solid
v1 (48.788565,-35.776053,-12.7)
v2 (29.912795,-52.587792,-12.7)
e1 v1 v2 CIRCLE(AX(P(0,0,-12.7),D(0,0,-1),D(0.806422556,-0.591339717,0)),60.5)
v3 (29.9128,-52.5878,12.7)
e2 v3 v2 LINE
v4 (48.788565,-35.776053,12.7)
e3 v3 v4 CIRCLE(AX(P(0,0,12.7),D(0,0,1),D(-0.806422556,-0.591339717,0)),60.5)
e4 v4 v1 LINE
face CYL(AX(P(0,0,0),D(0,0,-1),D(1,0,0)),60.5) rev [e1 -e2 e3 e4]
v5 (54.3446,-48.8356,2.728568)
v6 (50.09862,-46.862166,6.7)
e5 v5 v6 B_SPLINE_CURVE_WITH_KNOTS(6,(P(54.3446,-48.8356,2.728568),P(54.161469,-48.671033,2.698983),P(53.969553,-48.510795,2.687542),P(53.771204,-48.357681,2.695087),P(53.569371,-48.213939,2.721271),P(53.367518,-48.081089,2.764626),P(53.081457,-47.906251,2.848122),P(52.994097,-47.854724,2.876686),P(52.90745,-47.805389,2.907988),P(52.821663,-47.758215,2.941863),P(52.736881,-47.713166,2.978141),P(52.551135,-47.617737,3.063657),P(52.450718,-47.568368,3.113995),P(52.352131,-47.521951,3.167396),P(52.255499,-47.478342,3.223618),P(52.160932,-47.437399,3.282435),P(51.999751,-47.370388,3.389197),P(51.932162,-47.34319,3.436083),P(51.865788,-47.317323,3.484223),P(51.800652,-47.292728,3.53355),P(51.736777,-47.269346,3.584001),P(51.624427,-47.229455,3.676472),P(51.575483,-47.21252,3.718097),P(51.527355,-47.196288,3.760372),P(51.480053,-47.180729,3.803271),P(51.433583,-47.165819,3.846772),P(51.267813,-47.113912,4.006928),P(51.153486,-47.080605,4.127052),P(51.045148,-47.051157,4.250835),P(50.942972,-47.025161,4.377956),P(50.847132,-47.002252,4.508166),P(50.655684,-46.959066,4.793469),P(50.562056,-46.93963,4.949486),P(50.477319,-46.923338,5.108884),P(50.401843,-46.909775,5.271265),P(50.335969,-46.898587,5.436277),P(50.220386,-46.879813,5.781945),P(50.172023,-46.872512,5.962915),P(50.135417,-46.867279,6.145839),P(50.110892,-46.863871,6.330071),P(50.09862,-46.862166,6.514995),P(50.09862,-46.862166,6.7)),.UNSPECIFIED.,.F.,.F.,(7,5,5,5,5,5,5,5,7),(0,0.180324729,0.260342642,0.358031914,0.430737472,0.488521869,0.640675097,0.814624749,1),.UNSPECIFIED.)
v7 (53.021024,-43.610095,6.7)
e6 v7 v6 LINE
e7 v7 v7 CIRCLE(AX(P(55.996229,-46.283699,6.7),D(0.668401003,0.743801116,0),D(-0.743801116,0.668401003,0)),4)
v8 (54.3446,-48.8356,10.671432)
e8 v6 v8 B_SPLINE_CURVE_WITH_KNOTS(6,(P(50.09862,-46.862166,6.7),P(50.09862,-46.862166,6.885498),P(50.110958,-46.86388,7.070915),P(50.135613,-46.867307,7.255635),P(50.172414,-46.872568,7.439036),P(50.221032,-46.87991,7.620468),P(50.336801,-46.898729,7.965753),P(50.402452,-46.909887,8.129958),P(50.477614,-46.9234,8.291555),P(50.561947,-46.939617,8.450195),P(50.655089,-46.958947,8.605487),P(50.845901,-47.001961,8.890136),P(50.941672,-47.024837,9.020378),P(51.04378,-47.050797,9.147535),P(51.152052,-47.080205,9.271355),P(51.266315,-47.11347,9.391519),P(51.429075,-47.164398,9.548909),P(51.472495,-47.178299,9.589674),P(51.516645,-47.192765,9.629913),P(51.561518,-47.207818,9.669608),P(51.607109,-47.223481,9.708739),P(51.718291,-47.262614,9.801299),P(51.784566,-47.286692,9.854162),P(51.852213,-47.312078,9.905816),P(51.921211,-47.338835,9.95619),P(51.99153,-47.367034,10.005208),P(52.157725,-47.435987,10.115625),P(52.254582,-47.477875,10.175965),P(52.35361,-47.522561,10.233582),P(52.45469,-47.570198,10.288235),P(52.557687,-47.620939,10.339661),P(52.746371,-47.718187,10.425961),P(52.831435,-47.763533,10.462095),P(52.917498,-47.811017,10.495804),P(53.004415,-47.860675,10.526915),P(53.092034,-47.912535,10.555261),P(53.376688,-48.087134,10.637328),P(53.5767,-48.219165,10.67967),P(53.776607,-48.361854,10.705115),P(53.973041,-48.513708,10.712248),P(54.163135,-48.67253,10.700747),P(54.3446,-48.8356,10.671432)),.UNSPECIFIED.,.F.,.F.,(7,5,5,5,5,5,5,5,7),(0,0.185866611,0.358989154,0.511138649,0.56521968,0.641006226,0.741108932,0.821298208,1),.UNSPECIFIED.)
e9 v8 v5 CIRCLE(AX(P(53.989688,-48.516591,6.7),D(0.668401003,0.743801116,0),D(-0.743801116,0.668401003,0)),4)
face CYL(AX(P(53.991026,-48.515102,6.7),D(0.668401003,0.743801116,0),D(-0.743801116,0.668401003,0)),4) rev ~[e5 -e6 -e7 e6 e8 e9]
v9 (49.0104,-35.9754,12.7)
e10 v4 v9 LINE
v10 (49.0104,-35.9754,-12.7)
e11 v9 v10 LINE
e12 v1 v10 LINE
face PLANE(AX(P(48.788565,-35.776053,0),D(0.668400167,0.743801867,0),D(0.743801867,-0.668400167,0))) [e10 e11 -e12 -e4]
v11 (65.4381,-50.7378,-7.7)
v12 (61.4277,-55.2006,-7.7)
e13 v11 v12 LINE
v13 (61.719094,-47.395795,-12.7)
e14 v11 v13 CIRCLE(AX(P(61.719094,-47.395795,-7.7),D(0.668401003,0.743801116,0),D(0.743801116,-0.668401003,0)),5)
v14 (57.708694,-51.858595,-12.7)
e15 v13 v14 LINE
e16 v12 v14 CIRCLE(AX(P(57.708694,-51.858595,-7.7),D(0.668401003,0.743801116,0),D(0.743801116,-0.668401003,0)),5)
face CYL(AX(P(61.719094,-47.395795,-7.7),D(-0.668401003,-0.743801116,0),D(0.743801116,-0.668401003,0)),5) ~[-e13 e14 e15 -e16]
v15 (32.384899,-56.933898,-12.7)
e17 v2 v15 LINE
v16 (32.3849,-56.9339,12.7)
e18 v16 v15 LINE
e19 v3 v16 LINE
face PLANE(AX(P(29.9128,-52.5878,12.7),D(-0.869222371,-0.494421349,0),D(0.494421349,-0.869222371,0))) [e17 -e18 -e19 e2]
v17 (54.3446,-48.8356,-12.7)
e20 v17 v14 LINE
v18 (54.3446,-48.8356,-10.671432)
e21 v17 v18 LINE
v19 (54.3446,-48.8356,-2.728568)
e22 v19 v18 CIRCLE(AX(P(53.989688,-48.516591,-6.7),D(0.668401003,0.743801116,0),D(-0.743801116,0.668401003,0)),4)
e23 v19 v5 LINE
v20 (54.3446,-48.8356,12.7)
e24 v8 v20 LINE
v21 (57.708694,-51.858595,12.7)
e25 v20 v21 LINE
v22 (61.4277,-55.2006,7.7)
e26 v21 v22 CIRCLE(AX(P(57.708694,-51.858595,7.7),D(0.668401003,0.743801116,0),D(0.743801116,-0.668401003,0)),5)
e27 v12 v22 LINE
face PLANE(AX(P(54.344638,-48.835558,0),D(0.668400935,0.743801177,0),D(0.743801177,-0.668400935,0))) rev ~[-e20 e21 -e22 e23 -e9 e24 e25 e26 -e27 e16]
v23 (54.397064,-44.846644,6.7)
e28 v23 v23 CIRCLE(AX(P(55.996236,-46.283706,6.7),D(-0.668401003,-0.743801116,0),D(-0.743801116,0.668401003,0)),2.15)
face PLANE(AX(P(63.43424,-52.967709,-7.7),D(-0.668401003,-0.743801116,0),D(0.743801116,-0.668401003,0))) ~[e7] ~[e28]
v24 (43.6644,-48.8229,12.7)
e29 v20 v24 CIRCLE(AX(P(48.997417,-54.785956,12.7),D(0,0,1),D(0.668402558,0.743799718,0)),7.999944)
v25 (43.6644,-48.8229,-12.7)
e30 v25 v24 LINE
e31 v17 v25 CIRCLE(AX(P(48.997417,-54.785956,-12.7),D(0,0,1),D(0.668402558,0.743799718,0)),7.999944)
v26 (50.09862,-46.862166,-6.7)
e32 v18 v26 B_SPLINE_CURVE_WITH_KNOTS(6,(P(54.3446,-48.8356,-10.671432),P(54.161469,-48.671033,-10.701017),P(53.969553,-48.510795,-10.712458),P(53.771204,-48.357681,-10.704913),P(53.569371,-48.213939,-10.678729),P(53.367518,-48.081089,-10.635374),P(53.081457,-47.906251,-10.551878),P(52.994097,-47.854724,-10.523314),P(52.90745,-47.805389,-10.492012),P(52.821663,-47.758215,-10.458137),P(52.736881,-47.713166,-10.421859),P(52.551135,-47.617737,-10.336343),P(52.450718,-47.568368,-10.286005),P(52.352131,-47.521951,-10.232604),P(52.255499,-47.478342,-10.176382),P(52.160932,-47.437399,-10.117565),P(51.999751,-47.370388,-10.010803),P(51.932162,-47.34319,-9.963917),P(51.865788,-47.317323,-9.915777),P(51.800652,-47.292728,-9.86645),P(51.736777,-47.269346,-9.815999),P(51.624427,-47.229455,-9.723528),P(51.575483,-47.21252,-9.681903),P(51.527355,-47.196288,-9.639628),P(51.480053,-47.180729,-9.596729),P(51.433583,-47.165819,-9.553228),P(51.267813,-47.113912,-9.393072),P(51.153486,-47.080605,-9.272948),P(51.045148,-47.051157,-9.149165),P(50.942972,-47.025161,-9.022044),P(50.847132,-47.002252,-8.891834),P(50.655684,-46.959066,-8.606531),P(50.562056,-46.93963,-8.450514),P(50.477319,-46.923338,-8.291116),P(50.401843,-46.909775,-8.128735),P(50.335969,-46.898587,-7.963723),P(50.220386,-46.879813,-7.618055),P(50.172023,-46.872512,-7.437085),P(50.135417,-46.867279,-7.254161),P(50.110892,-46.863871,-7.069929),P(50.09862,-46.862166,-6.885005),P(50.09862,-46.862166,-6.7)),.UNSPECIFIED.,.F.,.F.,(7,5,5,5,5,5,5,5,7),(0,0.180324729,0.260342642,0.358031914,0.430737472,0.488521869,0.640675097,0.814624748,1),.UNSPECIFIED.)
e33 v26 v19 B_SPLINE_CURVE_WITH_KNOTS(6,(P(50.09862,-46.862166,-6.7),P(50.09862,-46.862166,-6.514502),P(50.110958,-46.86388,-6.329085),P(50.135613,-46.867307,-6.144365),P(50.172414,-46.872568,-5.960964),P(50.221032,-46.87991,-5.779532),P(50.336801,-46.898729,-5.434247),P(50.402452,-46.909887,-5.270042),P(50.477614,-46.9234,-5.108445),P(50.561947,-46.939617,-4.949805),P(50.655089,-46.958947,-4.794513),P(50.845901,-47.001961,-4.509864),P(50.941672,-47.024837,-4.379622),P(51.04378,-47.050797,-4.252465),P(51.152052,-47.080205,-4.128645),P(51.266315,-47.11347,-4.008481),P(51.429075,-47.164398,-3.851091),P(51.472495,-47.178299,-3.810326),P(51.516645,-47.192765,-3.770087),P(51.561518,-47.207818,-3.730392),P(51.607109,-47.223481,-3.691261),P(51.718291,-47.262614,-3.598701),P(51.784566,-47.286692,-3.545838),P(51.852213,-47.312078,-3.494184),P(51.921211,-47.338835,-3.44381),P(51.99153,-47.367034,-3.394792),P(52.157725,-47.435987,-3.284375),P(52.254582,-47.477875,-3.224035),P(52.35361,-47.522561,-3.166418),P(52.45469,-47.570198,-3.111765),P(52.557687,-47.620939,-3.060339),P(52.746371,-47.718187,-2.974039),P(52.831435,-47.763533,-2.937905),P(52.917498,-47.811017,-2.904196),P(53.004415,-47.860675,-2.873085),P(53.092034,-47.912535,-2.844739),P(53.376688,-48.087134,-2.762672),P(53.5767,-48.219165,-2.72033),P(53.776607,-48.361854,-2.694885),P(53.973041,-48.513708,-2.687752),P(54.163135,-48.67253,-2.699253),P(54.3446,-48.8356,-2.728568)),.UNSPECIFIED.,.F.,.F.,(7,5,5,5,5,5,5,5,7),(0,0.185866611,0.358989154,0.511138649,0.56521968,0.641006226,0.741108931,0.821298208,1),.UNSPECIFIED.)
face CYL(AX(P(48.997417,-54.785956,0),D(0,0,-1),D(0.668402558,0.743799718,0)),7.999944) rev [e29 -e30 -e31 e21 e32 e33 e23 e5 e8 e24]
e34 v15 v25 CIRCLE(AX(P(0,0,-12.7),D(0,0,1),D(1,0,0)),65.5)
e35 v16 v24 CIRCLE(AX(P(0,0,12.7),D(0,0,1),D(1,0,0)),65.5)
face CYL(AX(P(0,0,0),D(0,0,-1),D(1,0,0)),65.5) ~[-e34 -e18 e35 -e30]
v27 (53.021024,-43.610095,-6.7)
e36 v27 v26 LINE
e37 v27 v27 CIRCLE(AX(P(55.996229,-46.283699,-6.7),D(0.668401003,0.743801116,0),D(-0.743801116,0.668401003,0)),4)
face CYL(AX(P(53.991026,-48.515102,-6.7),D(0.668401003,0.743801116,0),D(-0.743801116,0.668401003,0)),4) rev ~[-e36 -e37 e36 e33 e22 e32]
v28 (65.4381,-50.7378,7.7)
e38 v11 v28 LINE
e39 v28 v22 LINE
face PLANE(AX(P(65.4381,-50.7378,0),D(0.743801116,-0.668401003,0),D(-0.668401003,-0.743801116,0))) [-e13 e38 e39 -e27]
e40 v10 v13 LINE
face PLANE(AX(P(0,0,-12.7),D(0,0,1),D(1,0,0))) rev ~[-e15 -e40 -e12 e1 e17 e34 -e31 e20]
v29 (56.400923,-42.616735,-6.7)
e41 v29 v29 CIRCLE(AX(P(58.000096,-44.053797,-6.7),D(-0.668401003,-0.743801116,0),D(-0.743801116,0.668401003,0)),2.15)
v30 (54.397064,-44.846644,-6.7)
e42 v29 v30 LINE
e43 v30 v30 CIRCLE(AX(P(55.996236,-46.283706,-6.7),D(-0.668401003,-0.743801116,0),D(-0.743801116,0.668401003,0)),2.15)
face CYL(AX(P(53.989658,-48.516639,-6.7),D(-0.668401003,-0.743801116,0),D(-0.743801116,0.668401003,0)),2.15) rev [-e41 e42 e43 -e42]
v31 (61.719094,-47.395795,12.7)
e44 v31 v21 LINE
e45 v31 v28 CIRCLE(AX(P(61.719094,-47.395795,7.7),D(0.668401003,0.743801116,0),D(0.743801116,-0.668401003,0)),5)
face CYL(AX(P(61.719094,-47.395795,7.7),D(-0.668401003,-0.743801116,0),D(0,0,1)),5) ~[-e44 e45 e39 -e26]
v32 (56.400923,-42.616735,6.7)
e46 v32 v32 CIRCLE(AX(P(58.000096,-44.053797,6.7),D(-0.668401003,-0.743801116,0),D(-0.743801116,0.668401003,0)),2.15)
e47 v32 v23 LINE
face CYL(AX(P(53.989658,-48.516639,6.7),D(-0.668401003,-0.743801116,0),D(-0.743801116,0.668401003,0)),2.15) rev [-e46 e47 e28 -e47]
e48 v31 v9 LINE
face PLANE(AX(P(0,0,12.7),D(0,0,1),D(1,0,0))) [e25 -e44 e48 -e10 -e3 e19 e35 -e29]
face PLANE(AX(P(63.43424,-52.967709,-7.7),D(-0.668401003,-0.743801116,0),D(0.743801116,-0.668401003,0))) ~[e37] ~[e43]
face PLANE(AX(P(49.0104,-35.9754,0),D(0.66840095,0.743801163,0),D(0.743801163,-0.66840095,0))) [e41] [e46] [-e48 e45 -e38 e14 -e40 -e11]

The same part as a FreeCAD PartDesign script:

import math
import FreeCAD as App
import Part
import Sketcher

V = App.Vector
Q = App.Units.Quantity


def edges_at(feature, points):
    """Names of the edges that pass closest to the given points."""
    edges = feature.Shape.Edges
    near = lambda p: min(range(len(edges)), key=lambda i: edges[i].distToShape(Part.Vertex(*p))[0])
    return sorted({f"Edge{near(p) + 1}" for p in points})

doc = App.newDocument("Part")
body = doc.addObject("PartDesign::Body", "Body")

sketch1 = body.newObject("Sketcher::SketchObject", "Sketch")
sketch1.AttachmentSupport = (doc.getObject("XY_Plane"), [""])
sketch1.MapMode = "FlatFace"
sketch1.addGeometry([
    Part.LineSegment(V(-48.79, -35.78, 0), V(-49.01, -35.98, 0)),
    Part.LineSegment(V(-49.01, -35.98, 0), V(-65.44, -50.74, 0)),
    Part.LineSegment(V(-65.44, -50.74, 0), V(-61.43, -55.2, 0)),
    Part.LineSegment(V(-61.43, -55.2, 0), V(-54.34, -48.84, 0)),
    Part.ArcOfCircle(Part.Circle(V(-49, -54.79, 0), V(0, 0, 1), 8), math.radians(48), math.radians(132)),
    Part.ArcOfCircle(Part.Circle(V(0, 0, 0), V(0, 0, 1), 65.5), math.radians(-132), math.radians(-48)),
    Part.ArcOfCircle(Part.Circle(V(49, -54.79, 0), V(0, 0, 1), 8), math.radians(48), math.radians(132)),
    Part.LineSegment(V(54.34, -48.84, 0), V(61.43, -55.2, 0)),
    Part.LineSegment(V(61.43, -55.2, 0), V(65.44, -50.74, 0)),
    Part.LineSegment(V(65.44, -50.74, 0), V(49.01, -35.98, 0)),
    Part.LineSegment(V(49.01, -35.98, 0), V(48.79, -35.78, 0)),
    Part.ArcOfCircle(Part.Circle(V(0, 0, 0), V(0, 0, 1), 60.5), math.radians(-144), math.radians(-36)),
], False)
sketch1.addConstraint([
    Sketcher.Constraint("Coincident", 0, 2, 1, 1),
    Sketcher.Constraint("Coincident", 1, 2, 2, 1),
    Sketcher.Constraint("Coincident", 2, 2, 3, 1),
    Sketcher.Constraint("Tangent", 3, 2, 4, 2),
    Sketcher.Constraint("Tangent", 4, 1, 5, 1),
    Sketcher.Constraint("Tangent", 5, 2, 6, 2),
    Sketcher.Constraint("Tangent", 6, 1, 7, 1),
    Sketcher.Constraint("Coincident", 7, 2, 8, 1),
    Sketcher.Constraint("Coincident", 8, 2, 9, 1),
    Sketcher.Constraint("Coincident", 9, 2, 10, 1),
    Sketcher.Constraint("Coincident", 10, 2, 11, 2),
    Sketcher.Constraint("Coincident", 11, 1, 0, 1),
    Sketcher.Constraint("Coincident", 5, 3, -1, 1),
    Sketcher.Constraint("Coincident", 11, 3, -1, 1),
    Sketcher.Constraint("Equal", 4, 6),
    Sketcher.Constraint("Symmetric", 3, 2, 6, 1, -2),
    Sketcher.Constraint("Symmetric", 1, 2, 8, 2, -2),
    Sketcher.Constraint("Symmetric", 0, 2, 9, 2, -2),
    Sketcher.Constraint("Parallel", 0, 1),
    Sketcher.Constraint("Perpendicular", 1, 2),
    Sketcher.Constraint("Perpendicular", 2, 3),
    Sketcher.Constraint("Perpendicular", 7, 8),
    Sketcher.Constraint("Parallel", 9, 10),
    Sketcher.Constraint("Radius", 4, Q("8 mm")),
    Sketcher.Constraint("Distance", 2, Q("6 mm")),
    Sketcher.Constraint("Radius", 5, Q("65.5 mm")),
    Sketcher.Constraint("Radius", 11, Q("60.5 mm")),
    Sketcher.Constraint("DistanceY", 6, 3, 10, 2, Q("19.01 mm")),
    Sketcher.Constraint("DistanceY", 4, 3, -1, 1, Q("54.786 mm")),
    Sketcher.Constraint("DistanceX", 1, 2, -1, 1, Q("65.438 mm")),
    Sketcher.Constraint("DistanceX", 0, 2, 4, 3, Q("0.013 mm")),
])
pad1 = body.newObject("PartDesign::Pad", "Pad")
pad1.Profile = sketch1
pad1.Length = 25.4
pad1.Midplane = True
doc.recompute()

fillet = body.newObject("PartDesign::Fillet", "Fillet")
fillet.Base = (pad1, edges_at(pad1, [
    (-63.433, -52.969, 12.7),
    (-63.433, -52.969, -12.7),
    (63.433, -52.969, 12.7),
    (63.433, -52.969, -12.7),
]))
fillet.Radius = 5

sketch2 = body.newObject("Sketcher::SketchObject", "Sketch001")
sketch2.Placement = App.Placement(V(-54.3446, -48.8356, -12.7), App.Rotation(V(0.743801116, 0.668401003, 0), V(0, 0, 1.000000001), V(0.668401003, -0.743801116, 0), "ZXY"))
sketch2.addGeometry([
    Part.Circle(V(0.5, 6, 0), V(0, 0, 1), 2.1),
    Part.Circle(V(0.5, 19.4, 0), V(0, 0, 1), 2.1),
], False)
sketch2.addConstraint([
    Sketcher.Constraint("Equal", 0, 1),
    Sketcher.Constraint("Vertical", 0, 3, 1, 3),
    Sketcher.Constraint("Diameter", 0, Q("4.3 mm")),
    Sketcher.Constraint("DistanceY", -1, 1, 0, 3, Q("6 mm")),
    Sketcher.Constraint("DistanceY", -1, 1, 1, 3, Q("19.4 mm")),
    Sketcher.Constraint("DistanceX", -1, 1, 0, 3, Q("0.4772 mm")),
])
pocket1 = body.newObject("PartDesign::Pocket", "Pocket")
pocket1.Profile = sketch2
pocket1.Type = "ThroughAll"
pocket1.Midplane = True

sketch3 = body.newObject("Sketcher::SketchObject", "Sketch002")
sketch3.Placement = App.Placement(V(-61.4277, -55.2006, -7.7), App.Rotation(V(0.743801116, 0.668401003, 0), V(0, 0, 1.000000001), V(0.668401003, -0.743801116, 0), "ZXY"))
sketch3.addGeometry([
    Part.Circle(V(10, 14.4, 0), V(0, 0, 1), 4),
    Part.Circle(V(10, 1, 0), V(0, 0, 1), 4),
], False)
sketch3.addConstraint([
    Sketcher.Constraint("Equal", 0, 1),
    Sketcher.Constraint("Vertical", 0, 3, 1, 3),
    Sketcher.Constraint("Diameter", 0, Q("8 mm")),
    Sketcher.Constraint("DistanceX", -1, 1, 0, 3, Q("10 mm")),
    Sketcher.Constraint("DistanceY", -1, 1, 1, 3, Q("1 mm")),
    Sketcher.Constraint("DistanceY", -1, 1, 0, 3, Q("14.4 mm")),
])
pocket2 = body.newObject("PartDesign::Pocket", "Pocket001")
pocket2.Profile = sketch3
pocket2.Length = 6
pocket2.Midplane = True
doc.recompute()

mirrored = body.newObject("PartDesign::Mirrored", "Mirrored")
mirrored.Originals = [pocket2, pocket1]
mirrored.MirrorPlane = (doc.getObject("YZ_Plane"), [""])
body.Tip = mirrored

sketch4 = body.newObject("Sketcher::SketchObject", "Sketch003")
sketch4.AttachmentSupport = (doc.getObject("XY_Plane"), [""])
sketch4.MapMode = "FlatFace"
sketch4.AttachmentOffset = App.Placement(V(0, 0, 12.7), App.Rotation())
sketch4.addGeometry([
    Part.LineSegment(V(32.4, -56.9, 0), V(29.9, -52.6, 0)),
    Part.ArcOfCircle(Part.Circle(V(0, 0, 0), V(0, 0, 1), 60.5), math.radians(-144), math.radians(-60)),
    Part.LineSegment(V(-48.8, -35.8, 0), V(-61.7, -47.4, 0)),
    Part.LineSegment(V(-61.7, -47.4, 0), V(-65.4, -50.7, 0)),
    Part.LineSegment(V(-65.4, -50.7, 0), V(-61.4, -55.2, 0)),
    Part.LineSegment(V(-61.4, -55.2, 0), V(-57.7, -51.9, 0)),
    Part.LineSegment(V(-57.7, -51.9, 0), V(-54.3, -48.8, 0)),
    Part.ArcOfCircle(Part.Circle(V(-49, -54.8, 0), V(0, 0, 1), 8), math.radians(48), math.radians(132)),
    Part.ArcOfCircle(Part.Circle(V(0, 0, 0), V(0, 0, 1), 65.5), math.radians(-132), math.radians(-60)),
], False)
sketch4.addConstraint([
    Sketcher.Constraint("Coincident", 0, 2, 1, 2),
    Sketcher.Constraint("Coincident", 1, 1, 2, 1),
    Sketcher.Constraint("Coincident", 2, 2, 3, 1),
    Sketcher.Constraint("Coincident", 3, 2, 4, 1),
    Sketcher.Constraint("Coincident", 4, 2, 5, 1),
    Sketcher.Constraint("Coincident", 5, 2, 6, 1),
    Sketcher.Constraint("Tangent", 6, 2, 7, 2),
    Sketcher.Constraint("Tangent", 7, 1, 8, 1),
    Sketcher.Constraint("Coincident", 8, 2, 0, 1),
    Sketcher.Constraint("Coincident", 1, 3, -1, 1),
    Sketcher.Constraint("Coincident", 8, 3, -1, 1),
    Sketcher.Constraint("Parallel", 2, 3),
    Sketcher.Constraint("Perpendicular", 3, 4),
    Sketcher.Constraint("Perpendicular", 4, 5),
    Sketcher.Constraint("Parallel", 5, 6),
    Sketcher.Constraint("Equal", 0, 3),
    Sketcher.Constraint("Equal", 3, 5),
    Sketcher.Constraint("Radius", 7, Q("8 mm")),
    Sketcher.Constraint("Radius", 1, Q("60.5 mm")),
    Sketcher.Constraint("Radius", 8, Q("65.5 mm")),
    Sketcher.Constraint("Distance", 4, Q("6 mm")),
    Sketcher.Constraint("DistanceY", 7, 3, 1, 1, Q("19.01 mm")),
    Sketcher.Constraint("DistanceX", 5, 2, 1, 1, Q("8.92 mm")),
    Sketcher.Constraint("DistanceY", 7, 3, -1, 1, Q("54.786 mm")),
    Sketcher.Constraint("DistanceX", -1, 1, 8, 2, Q("32.385 mm")),
    Sketcher.Constraint("DistanceX", 2, 2, 0, 2, Q("91.632 mm")),
])
pocket3 = body.newObject("PartDesign::Pocket", "Pocket002")
pocket3.Profile = sketch4
pocket3.Type = "ThroughAll"

doc.recompute()
